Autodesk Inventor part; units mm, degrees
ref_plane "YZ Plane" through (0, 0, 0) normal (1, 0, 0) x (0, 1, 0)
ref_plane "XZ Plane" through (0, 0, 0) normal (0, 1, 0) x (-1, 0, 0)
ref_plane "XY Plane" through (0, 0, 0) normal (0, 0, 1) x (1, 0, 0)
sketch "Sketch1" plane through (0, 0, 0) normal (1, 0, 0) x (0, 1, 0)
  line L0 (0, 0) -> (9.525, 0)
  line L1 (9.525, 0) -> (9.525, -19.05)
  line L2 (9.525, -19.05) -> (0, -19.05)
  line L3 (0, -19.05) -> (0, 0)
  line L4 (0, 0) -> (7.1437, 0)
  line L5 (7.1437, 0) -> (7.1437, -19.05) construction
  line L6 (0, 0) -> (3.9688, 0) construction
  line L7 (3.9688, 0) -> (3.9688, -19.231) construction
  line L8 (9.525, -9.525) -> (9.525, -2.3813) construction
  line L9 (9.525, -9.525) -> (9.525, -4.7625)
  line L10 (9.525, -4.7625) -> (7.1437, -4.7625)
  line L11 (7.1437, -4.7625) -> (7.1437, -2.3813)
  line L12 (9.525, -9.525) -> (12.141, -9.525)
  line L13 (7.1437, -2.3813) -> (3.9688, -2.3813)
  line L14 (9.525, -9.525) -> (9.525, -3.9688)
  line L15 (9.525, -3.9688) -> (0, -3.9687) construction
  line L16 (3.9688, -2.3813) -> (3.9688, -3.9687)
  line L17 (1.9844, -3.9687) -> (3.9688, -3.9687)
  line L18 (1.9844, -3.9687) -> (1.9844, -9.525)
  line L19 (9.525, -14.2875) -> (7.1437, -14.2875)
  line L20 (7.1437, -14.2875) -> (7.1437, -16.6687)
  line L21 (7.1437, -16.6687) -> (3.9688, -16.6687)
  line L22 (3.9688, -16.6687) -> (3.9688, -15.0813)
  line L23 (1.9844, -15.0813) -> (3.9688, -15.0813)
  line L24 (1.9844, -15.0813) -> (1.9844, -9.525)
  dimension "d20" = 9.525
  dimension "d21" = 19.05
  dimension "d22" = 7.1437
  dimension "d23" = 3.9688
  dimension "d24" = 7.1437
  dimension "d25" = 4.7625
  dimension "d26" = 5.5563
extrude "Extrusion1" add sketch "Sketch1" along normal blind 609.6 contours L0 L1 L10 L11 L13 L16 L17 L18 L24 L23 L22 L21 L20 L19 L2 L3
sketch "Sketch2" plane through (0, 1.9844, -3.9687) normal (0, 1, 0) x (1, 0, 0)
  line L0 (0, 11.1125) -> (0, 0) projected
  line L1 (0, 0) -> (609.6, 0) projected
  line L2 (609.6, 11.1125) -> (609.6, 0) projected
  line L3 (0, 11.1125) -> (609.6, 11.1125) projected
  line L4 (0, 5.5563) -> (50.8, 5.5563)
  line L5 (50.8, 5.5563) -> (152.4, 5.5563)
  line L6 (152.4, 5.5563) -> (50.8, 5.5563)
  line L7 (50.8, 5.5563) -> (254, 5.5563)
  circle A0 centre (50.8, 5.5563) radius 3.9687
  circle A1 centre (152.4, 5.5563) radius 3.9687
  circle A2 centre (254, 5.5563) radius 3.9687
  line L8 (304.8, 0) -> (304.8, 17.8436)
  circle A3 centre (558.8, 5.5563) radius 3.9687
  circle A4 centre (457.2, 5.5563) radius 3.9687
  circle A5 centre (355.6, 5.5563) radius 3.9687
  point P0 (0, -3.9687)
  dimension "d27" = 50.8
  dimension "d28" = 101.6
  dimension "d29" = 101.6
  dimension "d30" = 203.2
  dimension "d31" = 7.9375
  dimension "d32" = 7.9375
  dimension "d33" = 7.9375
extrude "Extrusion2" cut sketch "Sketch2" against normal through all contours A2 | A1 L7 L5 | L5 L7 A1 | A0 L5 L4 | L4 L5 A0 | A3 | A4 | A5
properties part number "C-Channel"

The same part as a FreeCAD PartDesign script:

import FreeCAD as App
import Part
import Sketcher

V = App.Vector
Q = App.Units.Quantity

doc = App.newDocument("Part")
body = doc.addObject("PartDesign::Body", "Body")

sketch1 = body.newObject("Sketcher::SketchObject", "Sketch")
sketch1.AttachmentSupport = (doc.getObject("YZ_Plane"), [""])
sketch1.MapMode = "FlatFace"
sketch1.addGeometry([
    Part.LineSegment(V(9.5, 0, 0), V(0, 0, 0)),
    Part.LineSegment(V(0, 0, 0), V(0, -19.1, 0)),
    Part.LineSegment(V(0, -19.1, 0), V(9.5, -19.1, 0)),
    Part.LineSegment(V(9.5, -19.1, 0), V(9.5, -14.3, 0)),
    Part.LineSegment(V(9.5, -14.3, 0), V(7.1, -14.3, 0)),
    Part.LineSegment(V(7.1, -14.3, 0), V(7.1, -16.7, 0)),
    Part.LineSegment(V(7.1, -16.7, 0), V(4, -16.7, 0)),
    Part.LineSegment(V(4, -16.7, 0), V(4, -15.1, 0)),
    Part.LineSegment(V(4, -15.1, 0), V(2, -15.1, 0)),
    Part.LineSegment(V(2, -15.1, 0), V(2, -4, 0)),
    Part.LineSegment(V(2, -4, 0), V(4, -4, 0)),
    Part.LineSegment(V(4, -4, 0), V(4, -2.4, 0)),
    Part.LineSegment(V(4, -2.4, 0), V(7.1, -2.4, 0)),
    Part.LineSegment(V(7.1, -2.4, 0), V(7.1, -4.8, 0)),
    Part.LineSegment(V(7.1, -4.8, 0), V(9.5, -4.8, 0)),
    Part.LineSegment(V(9.5, -4.8, 0), V(9.5, 0, 0)),
], False)
sketch1.addConstraint([
    Sketcher.Constraint("Coincident", 0, 2, 1, 1),
    Sketcher.Constraint("Coincident", 1, 2, 2, 1),
    Sketcher.Constraint("Coincident", 2, 2, 3, 1),
    Sketcher.Constraint("Coincident", 3, 2, 4, 1),
    Sketcher.Constraint("Coincident", 4, 2, 5, 1),
    Sketcher.Constraint("Coincident", 5, 2, 6, 1),
    Sketcher.Constraint("Coincident", 6, 2, 7, 1),
    Sketcher.Constraint("Coincident", 7, 2, 8, 1),
    Sketcher.Constraint("Coincident", 8, 2, 9, 1),
    Sketcher.Constraint("Coincident", 9, 2, 10, 1),
    Sketcher.Constraint("Coincident", 10, 2, 11, 1),
    Sketcher.Constraint("Coincident", 11, 2, 12, 1),
    Sketcher.Constraint("Coincident", 12, 2, 13, 1),
    Sketcher.Constraint("Coincident", 13, 2, 14, 1),
    Sketcher.Constraint("Coincident", 14, 2, 15, 1),
    Sketcher.Constraint("Coincident", 15, 2, 0, 1),
    Sketcher.Constraint("Horizontal", 0),
    Sketcher.Constraint("Vertical", 1),
    Sketcher.Constraint("Horizontal", 2),
    Sketcher.Constraint("Vertical", 3),
    Sketcher.Constraint("Horizontal", 4),
    Sketcher.Constraint("Vertical", 5),
    Sketcher.Constraint("Horizontal", 6),
    Sketcher.Constraint("Vertical", 7),
    Sketcher.Constraint("Horizontal", 8),
    Sketcher.Constraint("Vertical", 9),
    Sketcher.Constraint("Horizontal", 10),
    Sketcher.Constraint("Vertical", 11),
    Sketcher.Constraint("Horizontal", 12),
    Sketcher.Constraint("Vertical", 13),
    Sketcher.Constraint("Horizontal", 14),
    Sketcher.Constraint("Vertical", 15),
    Sketcher.Constraint("Coincident", 0, 2, -1, 1),
    Sketcher.Constraint("Vertical", 7, 2, 10, 2),
    Sketcher.Constraint("Vertical", 5, 2, 12, 2),
    Sketcher.Constraint("Vertical", 3, 2, 14, 2),
    Sketcher.Constraint("Equal", 14, 5),
    Sketcher.Constraint("Equal", 7, 11),
    Sketcher.Constraint("Equal", 5, 13),
    Sketcher.Constraint("Equal", 3, 15),
    Sketcher.Constraint("DistanceY", 1, 2, 1, 1, Q("0.75 in")),
    Sketcher.Constraint("DistanceX", 0, 2, 0, 1, Q("0.375 in")),
    Sketcher.Constraint("DistanceY", 3, 1, 3, 2, Q("0.1875 in")),
    Sketcher.Constraint("DistanceX", -1, 1, 4, 2, Q("0.281248 in")),
    Sketcher.Constraint("DistanceX", -1, 1, 6, 2, Q("0.156252 in")),
    Sketcher.Constraint("DistanceY", 9, 2, -1, 1, Q("0.156248 in")),
    Sketcher.Constraint("DistanceX", 8, 2, 8, 1, Q("0.078126 in")),
])
pad1 = body.newObject("PartDesign::Pad", "Pad")
pad1.Profile = sketch1
pad1.Length = Q("24 in")

sketch2 = body.newObject("Sketcher::SketchObject", "Sketch001")
sketch2.AttachmentSupport = (doc.getObject("XZ_Plane"), [""])
sketch2.MapMode = "FlatFace"
sketch2.AttachmentOffset = App.Placement(V(0, 0, -0.078126 * 25.4), App.Rotation())
sketch2.addGeometry([
    Part.Circle(V(254, -9.5, 0), V(0, 0, 1), 4),
    Part.Circle(V(152.4, -9.5, 0), V(0, 0, 1), 4),
    Part.Circle(V(50.8, -9.5, 0), V(0, 0, 1), 4),
    Part.Circle(V(558.8, -9.5, 0), V(0, 0, 1), 4),
    Part.Circle(V(457.2, -9.5, 0), V(0, 0, 1), 4),
    Part.Circle(V(355.6, -9.5, 0), V(0, 0, 1), 4),
], False)
sketch2.addConstraint([
    Sketcher.Constraint("Equal", 0, 1),
    Sketcher.Constraint("Equal", 1, 2),
    Sketcher.Constraint("Equal", 2, 3),
    Sketcher.Constraint("Equal", 3, 4),
    Sketcher.Constraint("Equal", 4, 5),
    Sketcher.Constraint("Horizontal", 0, 3, 1, 3),
    Sketcher.Constraint("Horizontal", 1, 3, 2, 3),
    Sketcher.Constraint("Horizontal", 2, 3, 3, 3),
    Sketcher.Constraint("Horizontal", 3, 3, 4, 3),
    Sketcher.Constraint("Horizontal", 4, 3, 5, 3),
    Sketcher.Constraint("Diameter", 0, Q("0.3125 in")),
    Sketcher.Constraint("DistanceX", -1, 1, 2, 3, Q("2 in")),
    Sketcher.Constraint("DistanceX", 1, 3, 0, 3, Q("4 in")),
    Sketcher.Constraint("DistanceX", 2, 3, 1, 3, Q("4 in")),
    Sketcher.Constraint("DistanceX", 4, 3, 3, 3, Q("4 in")),
    Sketcher.Constraint("DistanceX", 0, 3, 4, 3, Q("8 in")),
    Sketcher.Constraint("DistanceX", 5, 3, 4, 3, Q("4 in")),
    Sketcher.Constraint("DistanceY", 0, 3, -1, 1, Q("0.375 in")),
])
pocket1 = body.newObject("PartDesign::Pocket", "Pocket")
pocket1.Profile = sketch2
pocket1.Type = "ThroughAll"
pocket1.Reversed = True

doc.recompute()
